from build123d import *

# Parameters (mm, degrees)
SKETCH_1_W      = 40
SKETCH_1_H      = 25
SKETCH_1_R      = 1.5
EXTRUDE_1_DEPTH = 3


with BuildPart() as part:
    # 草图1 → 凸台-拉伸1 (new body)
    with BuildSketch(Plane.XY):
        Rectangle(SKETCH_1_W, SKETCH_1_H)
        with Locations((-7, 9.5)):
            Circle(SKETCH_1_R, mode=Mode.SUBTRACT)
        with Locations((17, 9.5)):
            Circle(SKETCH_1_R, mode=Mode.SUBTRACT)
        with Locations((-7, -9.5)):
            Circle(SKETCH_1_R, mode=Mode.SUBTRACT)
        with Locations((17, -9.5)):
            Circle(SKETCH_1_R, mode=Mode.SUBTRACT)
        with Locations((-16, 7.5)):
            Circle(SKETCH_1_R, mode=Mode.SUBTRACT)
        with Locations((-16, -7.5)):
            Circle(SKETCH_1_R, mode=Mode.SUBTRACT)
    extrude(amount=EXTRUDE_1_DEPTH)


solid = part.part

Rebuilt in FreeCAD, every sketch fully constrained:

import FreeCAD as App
import Part
import Sketcher

V = App.Vector
Q = App.Units.Quantity


def add_polygon(sketch, points):
    """Adds a closed chain of lines whose ends are joined by coincident constraints."""
    first, n = sketch.GeometryCount, len(points)
    for a, b in zip(points, points[1:] + points[:1]):
        sketch.addGeometry(Part.LineSegment(App.Vector(*a, 0), App.Vector(*b, 0)), False)
    for i in range(n):
        sketch.addConstraint(Sketcher.Constraint("Coincident", first + i, 2, first + (i + 1) % n, 1))

doc = App.newDocument("Part")
body = doc.addObject("PartDesign::Body", "Body")

sketch1 = body.newObject("Sketcher::SketchObject", "Sketch")
sketch1.AttachmentSupport = (doc.getObject("XY_Plane"), [""])
sketch1.MapMode = "FlatFace"
add_polygon(sketch1, [(-20, 12.5), (-20, -12.5), (20, -12.5), (20, 12.5)])
sketch1.addGeometry(Part.Circle(V(-16, -7.5, 0), V(0, 0, 1), 1.5), False)
sketch1.addGeometry(Part.Circle(V(-7, -9.5, 0), V(0, 0, 1), 1.5), False)
sketch1.addGeometry(Part.Circle(V(17, -9.5, 0), V(0, 0, 1), 1.5), False)
sketch1.addGeometry(Part.Circle(V(-16, 7.5, 0), V(0, 0, 1), 1.5), False)
sketch1.addGeometry(Part.Circle(V(-7, 9.5, 0), V(0, 0, 1), 1.5), False)
sketch1.addGeometry(Part.Circle(V(17, 9.5, 0), V(0, 0, 1), 1.5), False)
sketch1.addConstraint([
    Sketcher.Constraint("Vertical", 0),
    Sketcher.Constraint("Horizontal", 1),
    Sketcher.Constraint("Vertical", 2),
    Sketcher.Constraint("Horizontal", 3),
    Sketcher.Constraint("Equal", 4, 5),
    Sketcher.Constraint("Equal", 5, 6),
    Sketcher.Constraint("Equal", 6, 7),
    Sketcher.Constraint("Equal", 7, 8),
    Sketcher.Constraint("Equal", 8, 9),
    Sketcher.Constraint("Symmetric", 0, 2, 2, 2, -1, 1),
    Sketcher.Constraint("Symmetric", 4, 3, 7, 3, -1),
    Sketcher.Constraint("Symmetric", 5, 3, 8, 3, -1),
    Sketcher.Constraint("Symmetric", 6, 3, 9, 3, -1),
    Sketcher.Constraint("Horizontal", 5, 3, 6, 3),
    Sketcher.Constraint("Diameter", 4, Q("3 mm")),
    Sketcher.Constraint("DistanceX", 1, 1, 1, 2, Q("40 mm")),
    Sketcher.Constraint("DistanceY", 0, 2, 0, 1, Q("25 mm")),
    Sketcher.Constraint("DistanceX", 4, 3, -1, 1, Q("16 mm")),
    Sketcher.Constraint("DistanceX", 5, 3, -1, 1, Q("7 mm")),
    Sketcher.Constraint("DistanceX", -1, 1, 6, 3, Q("17 mm")),
    Sketcher.Constraint("DistanceY", 5, 3, 4, 3, Q("2 mm")),
    Sketcher.Constraint("DistanceY", 4, 3, 7, 3, Q("15 mm")),
])
pad1 = body.newObject("PartDesign::Pad", "Pad")
pad1.Profile = sketch1
pad1.Length = 3

doc.recompute()
